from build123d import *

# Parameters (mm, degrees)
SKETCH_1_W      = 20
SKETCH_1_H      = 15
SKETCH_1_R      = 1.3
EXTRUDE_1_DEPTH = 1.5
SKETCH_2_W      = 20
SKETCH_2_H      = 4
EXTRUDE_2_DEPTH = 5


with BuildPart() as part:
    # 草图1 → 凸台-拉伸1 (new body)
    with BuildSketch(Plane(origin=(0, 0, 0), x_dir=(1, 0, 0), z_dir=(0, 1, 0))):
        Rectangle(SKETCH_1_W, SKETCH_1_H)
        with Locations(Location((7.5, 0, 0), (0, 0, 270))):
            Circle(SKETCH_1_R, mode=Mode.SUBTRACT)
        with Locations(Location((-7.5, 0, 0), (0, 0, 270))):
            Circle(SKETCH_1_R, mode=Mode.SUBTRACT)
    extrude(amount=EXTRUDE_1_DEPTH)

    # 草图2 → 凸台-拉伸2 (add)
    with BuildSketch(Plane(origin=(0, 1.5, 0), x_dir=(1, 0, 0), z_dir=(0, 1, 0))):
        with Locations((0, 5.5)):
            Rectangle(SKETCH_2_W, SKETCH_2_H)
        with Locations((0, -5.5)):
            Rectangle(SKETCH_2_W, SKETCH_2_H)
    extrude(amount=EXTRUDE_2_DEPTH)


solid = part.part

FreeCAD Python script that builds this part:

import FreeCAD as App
import Part
import Sketcher
Q = App.Units.Quantity


def add_polygon(sketch, points):
    """Adds a closed chain of lines whose ends are joined by coincident constraints."""
    first, n = sketch.GeometryCount, len(points)
    for a, b in zip(points, points[1:] + points[:1]):
        sketch.addGeometry(Part.LineSegment(App.Vector(*a, 0), App.Vector(*b, 0)), False)
    for i in range(n):
        sketch.addConstraint(Sketcher.Constraint("Coincident", first + i, 2, first + (i + 1) % n, 1))

doc = App.newDocument("Part")
params = doc.addObject("Spreadsheet::Sheet", "Params")
for row, (alias, value) in enumerate([
    ("sketch1_diameter", "2.6 mm"),
    ("sketch1_width", "20 mm"),
    ("sketch1_height", "15 mm"),
    ("pad1_length", "1.5 mm"),
    ("sketch2_width", "20 mm"),
    ("sketch2_height", "4 mm"),
    ("pad2_length", "5 mm"),
], start=1):
    params.set(f"A{row}", alias)
    params.set(f"B{row}", "=" + value)
    params.setAlias(f"B{row}", alias)

body = doc.addObject("PartDesign::Body", "Body")

# Sketch on XZ plane
sketch1 = body.newObject("Sketcher::SketchObject", "Sketch")
sketch1.AttachmentSupport = (doc.getObject("XZ_Plane"), [""])
sketch1.MapMode = "FlatFace"
add_polygon(sketch1, [(-10, -7.5), (-10, 7.5), (10, 7.5), (10, -7.5)])  # lines 0-3
sketch1.addGeometry(Part.Circle(App.Vector(-7.5, 0, 0), App.Vector(0, 0, 1), 1.3), False)  # 4
sketch1.addGeometry(Part.Circle(App.Vector(7.5, 0, 0), App.Vector(0, 0, 1), 1.3), False)  # 5
sketch1.addConstraint([
    Sketcher.Constraint("Vertical", 0),
    Sketcher.Constraint("Horizontal", 1),
    Sketcher.Constraint("Vertical", 2),
    Sketcher.Constraint("Horizontal", 3),
    Sketcher.Constraint("Equal", 4, 5),
    Sketcher.Constraint("Symmetric", 4, 3, 5, 3, -1, 1),
    Sketcher.Constraint("Symmetric", 0, 2, 2, 2, -1, 1),
    Sketcher.Constraint("PointOnObject", 4, 3, -1),
    Sketcher.Constraint("Diameter", 4, Q("2.6 mm")),
    Sketcher.Constraint("DistanceX", 1, 1, 1, 2, Q("20 mm")),
    Sketcher.Constraint("DistanceY", 0, 1, 0, 2, Q("15 mm")),
    Sketcher.Constraint("DistanceX", 4, 3, 5, 3, Q("15 mm")),
])
sketch1.setExpression("Constraints[12]", "Params.sketch1_diameter")
sketch1.setExpression("Constraints[13]", "Params.sketch1_width")
sketch1.setExpression("Constraints[14]", "Params.sketch1_height")
pad1 = body.newObject("PartDesign::Pad", "Pad")
pad1.Profile = sketch1
pad1.setExpression("Length", "Params.pad1_length")
pad1.Reversed = True

# Sketch on XZ plane
sketch2 = body.newObject("Sketcher::SketchObject", "Sketch001")
sketch2.AttachmentSupport = (doc.getObject("XZ_Plane"), [""])
sketch2.MapMode = "FlatFace"
sketch2.AttachmentOffset = App.Placement(App.Vector(0, 0, -1.5), App.Rotation())
add_polygon(sketch2, [(-10, -7.5), (-10, -3.5), (10, -3.5), (10, -7.5)])  # lines 0-3
add_polygon(sketch2, [(-10, 3.5), (-10, 7.5), (10, 7.5), (10, 3.5)])  # lines 4-7
sketch2.addConstraint([
    Sketcher.Constraint("Vertical", 0),
    Sketcher.Constraint("Horizontal", 1),
    Sketcher.Constraint("Vertical", 2),
    Sketcher.Constraint("Horizontal", 3),
    Sketcher.Constraint("Vertical", 4),
    Sketcher.Constraint("Horizontal", 5),
    Sketcher.Constraint("Vertical", 6),
    Sketcher.Constraint("Horizontal", 7),
    Sketcher.Constraint("Symmetric", 2, 2, 4, 2, -1, 1),
    Sketcher.Constraint("Symmetric", 0, 2, 6, 2, -1, 1),
    Sketcher.Constraint("Vertical", 3, 2, 4, 2),
    Sketcher.Constraint("DistanceX", 1, 1, 1, 2, Q("20 mm")),
    Sketcher.Constraint("DistanceY", 0, 1, 0, 2, Q("4 mm")),
    Sketcher.Constraint("DistanceY", 0, 2, 4, 2, Q("11 mm")),
])
sketch2.setExpression("Constraints[19]", "Params.sketch2_width")
sketch2.setExpression("Constraints[20]", "Params.sketch2_height")
pad2 = body.newObject("PartDesign::Pad", "Pad001")
pad2.Profile = sketch2
pad2.setExpression("Length", "Params.pad2_length")
pad2.Reversed = True

doc.recompute()
